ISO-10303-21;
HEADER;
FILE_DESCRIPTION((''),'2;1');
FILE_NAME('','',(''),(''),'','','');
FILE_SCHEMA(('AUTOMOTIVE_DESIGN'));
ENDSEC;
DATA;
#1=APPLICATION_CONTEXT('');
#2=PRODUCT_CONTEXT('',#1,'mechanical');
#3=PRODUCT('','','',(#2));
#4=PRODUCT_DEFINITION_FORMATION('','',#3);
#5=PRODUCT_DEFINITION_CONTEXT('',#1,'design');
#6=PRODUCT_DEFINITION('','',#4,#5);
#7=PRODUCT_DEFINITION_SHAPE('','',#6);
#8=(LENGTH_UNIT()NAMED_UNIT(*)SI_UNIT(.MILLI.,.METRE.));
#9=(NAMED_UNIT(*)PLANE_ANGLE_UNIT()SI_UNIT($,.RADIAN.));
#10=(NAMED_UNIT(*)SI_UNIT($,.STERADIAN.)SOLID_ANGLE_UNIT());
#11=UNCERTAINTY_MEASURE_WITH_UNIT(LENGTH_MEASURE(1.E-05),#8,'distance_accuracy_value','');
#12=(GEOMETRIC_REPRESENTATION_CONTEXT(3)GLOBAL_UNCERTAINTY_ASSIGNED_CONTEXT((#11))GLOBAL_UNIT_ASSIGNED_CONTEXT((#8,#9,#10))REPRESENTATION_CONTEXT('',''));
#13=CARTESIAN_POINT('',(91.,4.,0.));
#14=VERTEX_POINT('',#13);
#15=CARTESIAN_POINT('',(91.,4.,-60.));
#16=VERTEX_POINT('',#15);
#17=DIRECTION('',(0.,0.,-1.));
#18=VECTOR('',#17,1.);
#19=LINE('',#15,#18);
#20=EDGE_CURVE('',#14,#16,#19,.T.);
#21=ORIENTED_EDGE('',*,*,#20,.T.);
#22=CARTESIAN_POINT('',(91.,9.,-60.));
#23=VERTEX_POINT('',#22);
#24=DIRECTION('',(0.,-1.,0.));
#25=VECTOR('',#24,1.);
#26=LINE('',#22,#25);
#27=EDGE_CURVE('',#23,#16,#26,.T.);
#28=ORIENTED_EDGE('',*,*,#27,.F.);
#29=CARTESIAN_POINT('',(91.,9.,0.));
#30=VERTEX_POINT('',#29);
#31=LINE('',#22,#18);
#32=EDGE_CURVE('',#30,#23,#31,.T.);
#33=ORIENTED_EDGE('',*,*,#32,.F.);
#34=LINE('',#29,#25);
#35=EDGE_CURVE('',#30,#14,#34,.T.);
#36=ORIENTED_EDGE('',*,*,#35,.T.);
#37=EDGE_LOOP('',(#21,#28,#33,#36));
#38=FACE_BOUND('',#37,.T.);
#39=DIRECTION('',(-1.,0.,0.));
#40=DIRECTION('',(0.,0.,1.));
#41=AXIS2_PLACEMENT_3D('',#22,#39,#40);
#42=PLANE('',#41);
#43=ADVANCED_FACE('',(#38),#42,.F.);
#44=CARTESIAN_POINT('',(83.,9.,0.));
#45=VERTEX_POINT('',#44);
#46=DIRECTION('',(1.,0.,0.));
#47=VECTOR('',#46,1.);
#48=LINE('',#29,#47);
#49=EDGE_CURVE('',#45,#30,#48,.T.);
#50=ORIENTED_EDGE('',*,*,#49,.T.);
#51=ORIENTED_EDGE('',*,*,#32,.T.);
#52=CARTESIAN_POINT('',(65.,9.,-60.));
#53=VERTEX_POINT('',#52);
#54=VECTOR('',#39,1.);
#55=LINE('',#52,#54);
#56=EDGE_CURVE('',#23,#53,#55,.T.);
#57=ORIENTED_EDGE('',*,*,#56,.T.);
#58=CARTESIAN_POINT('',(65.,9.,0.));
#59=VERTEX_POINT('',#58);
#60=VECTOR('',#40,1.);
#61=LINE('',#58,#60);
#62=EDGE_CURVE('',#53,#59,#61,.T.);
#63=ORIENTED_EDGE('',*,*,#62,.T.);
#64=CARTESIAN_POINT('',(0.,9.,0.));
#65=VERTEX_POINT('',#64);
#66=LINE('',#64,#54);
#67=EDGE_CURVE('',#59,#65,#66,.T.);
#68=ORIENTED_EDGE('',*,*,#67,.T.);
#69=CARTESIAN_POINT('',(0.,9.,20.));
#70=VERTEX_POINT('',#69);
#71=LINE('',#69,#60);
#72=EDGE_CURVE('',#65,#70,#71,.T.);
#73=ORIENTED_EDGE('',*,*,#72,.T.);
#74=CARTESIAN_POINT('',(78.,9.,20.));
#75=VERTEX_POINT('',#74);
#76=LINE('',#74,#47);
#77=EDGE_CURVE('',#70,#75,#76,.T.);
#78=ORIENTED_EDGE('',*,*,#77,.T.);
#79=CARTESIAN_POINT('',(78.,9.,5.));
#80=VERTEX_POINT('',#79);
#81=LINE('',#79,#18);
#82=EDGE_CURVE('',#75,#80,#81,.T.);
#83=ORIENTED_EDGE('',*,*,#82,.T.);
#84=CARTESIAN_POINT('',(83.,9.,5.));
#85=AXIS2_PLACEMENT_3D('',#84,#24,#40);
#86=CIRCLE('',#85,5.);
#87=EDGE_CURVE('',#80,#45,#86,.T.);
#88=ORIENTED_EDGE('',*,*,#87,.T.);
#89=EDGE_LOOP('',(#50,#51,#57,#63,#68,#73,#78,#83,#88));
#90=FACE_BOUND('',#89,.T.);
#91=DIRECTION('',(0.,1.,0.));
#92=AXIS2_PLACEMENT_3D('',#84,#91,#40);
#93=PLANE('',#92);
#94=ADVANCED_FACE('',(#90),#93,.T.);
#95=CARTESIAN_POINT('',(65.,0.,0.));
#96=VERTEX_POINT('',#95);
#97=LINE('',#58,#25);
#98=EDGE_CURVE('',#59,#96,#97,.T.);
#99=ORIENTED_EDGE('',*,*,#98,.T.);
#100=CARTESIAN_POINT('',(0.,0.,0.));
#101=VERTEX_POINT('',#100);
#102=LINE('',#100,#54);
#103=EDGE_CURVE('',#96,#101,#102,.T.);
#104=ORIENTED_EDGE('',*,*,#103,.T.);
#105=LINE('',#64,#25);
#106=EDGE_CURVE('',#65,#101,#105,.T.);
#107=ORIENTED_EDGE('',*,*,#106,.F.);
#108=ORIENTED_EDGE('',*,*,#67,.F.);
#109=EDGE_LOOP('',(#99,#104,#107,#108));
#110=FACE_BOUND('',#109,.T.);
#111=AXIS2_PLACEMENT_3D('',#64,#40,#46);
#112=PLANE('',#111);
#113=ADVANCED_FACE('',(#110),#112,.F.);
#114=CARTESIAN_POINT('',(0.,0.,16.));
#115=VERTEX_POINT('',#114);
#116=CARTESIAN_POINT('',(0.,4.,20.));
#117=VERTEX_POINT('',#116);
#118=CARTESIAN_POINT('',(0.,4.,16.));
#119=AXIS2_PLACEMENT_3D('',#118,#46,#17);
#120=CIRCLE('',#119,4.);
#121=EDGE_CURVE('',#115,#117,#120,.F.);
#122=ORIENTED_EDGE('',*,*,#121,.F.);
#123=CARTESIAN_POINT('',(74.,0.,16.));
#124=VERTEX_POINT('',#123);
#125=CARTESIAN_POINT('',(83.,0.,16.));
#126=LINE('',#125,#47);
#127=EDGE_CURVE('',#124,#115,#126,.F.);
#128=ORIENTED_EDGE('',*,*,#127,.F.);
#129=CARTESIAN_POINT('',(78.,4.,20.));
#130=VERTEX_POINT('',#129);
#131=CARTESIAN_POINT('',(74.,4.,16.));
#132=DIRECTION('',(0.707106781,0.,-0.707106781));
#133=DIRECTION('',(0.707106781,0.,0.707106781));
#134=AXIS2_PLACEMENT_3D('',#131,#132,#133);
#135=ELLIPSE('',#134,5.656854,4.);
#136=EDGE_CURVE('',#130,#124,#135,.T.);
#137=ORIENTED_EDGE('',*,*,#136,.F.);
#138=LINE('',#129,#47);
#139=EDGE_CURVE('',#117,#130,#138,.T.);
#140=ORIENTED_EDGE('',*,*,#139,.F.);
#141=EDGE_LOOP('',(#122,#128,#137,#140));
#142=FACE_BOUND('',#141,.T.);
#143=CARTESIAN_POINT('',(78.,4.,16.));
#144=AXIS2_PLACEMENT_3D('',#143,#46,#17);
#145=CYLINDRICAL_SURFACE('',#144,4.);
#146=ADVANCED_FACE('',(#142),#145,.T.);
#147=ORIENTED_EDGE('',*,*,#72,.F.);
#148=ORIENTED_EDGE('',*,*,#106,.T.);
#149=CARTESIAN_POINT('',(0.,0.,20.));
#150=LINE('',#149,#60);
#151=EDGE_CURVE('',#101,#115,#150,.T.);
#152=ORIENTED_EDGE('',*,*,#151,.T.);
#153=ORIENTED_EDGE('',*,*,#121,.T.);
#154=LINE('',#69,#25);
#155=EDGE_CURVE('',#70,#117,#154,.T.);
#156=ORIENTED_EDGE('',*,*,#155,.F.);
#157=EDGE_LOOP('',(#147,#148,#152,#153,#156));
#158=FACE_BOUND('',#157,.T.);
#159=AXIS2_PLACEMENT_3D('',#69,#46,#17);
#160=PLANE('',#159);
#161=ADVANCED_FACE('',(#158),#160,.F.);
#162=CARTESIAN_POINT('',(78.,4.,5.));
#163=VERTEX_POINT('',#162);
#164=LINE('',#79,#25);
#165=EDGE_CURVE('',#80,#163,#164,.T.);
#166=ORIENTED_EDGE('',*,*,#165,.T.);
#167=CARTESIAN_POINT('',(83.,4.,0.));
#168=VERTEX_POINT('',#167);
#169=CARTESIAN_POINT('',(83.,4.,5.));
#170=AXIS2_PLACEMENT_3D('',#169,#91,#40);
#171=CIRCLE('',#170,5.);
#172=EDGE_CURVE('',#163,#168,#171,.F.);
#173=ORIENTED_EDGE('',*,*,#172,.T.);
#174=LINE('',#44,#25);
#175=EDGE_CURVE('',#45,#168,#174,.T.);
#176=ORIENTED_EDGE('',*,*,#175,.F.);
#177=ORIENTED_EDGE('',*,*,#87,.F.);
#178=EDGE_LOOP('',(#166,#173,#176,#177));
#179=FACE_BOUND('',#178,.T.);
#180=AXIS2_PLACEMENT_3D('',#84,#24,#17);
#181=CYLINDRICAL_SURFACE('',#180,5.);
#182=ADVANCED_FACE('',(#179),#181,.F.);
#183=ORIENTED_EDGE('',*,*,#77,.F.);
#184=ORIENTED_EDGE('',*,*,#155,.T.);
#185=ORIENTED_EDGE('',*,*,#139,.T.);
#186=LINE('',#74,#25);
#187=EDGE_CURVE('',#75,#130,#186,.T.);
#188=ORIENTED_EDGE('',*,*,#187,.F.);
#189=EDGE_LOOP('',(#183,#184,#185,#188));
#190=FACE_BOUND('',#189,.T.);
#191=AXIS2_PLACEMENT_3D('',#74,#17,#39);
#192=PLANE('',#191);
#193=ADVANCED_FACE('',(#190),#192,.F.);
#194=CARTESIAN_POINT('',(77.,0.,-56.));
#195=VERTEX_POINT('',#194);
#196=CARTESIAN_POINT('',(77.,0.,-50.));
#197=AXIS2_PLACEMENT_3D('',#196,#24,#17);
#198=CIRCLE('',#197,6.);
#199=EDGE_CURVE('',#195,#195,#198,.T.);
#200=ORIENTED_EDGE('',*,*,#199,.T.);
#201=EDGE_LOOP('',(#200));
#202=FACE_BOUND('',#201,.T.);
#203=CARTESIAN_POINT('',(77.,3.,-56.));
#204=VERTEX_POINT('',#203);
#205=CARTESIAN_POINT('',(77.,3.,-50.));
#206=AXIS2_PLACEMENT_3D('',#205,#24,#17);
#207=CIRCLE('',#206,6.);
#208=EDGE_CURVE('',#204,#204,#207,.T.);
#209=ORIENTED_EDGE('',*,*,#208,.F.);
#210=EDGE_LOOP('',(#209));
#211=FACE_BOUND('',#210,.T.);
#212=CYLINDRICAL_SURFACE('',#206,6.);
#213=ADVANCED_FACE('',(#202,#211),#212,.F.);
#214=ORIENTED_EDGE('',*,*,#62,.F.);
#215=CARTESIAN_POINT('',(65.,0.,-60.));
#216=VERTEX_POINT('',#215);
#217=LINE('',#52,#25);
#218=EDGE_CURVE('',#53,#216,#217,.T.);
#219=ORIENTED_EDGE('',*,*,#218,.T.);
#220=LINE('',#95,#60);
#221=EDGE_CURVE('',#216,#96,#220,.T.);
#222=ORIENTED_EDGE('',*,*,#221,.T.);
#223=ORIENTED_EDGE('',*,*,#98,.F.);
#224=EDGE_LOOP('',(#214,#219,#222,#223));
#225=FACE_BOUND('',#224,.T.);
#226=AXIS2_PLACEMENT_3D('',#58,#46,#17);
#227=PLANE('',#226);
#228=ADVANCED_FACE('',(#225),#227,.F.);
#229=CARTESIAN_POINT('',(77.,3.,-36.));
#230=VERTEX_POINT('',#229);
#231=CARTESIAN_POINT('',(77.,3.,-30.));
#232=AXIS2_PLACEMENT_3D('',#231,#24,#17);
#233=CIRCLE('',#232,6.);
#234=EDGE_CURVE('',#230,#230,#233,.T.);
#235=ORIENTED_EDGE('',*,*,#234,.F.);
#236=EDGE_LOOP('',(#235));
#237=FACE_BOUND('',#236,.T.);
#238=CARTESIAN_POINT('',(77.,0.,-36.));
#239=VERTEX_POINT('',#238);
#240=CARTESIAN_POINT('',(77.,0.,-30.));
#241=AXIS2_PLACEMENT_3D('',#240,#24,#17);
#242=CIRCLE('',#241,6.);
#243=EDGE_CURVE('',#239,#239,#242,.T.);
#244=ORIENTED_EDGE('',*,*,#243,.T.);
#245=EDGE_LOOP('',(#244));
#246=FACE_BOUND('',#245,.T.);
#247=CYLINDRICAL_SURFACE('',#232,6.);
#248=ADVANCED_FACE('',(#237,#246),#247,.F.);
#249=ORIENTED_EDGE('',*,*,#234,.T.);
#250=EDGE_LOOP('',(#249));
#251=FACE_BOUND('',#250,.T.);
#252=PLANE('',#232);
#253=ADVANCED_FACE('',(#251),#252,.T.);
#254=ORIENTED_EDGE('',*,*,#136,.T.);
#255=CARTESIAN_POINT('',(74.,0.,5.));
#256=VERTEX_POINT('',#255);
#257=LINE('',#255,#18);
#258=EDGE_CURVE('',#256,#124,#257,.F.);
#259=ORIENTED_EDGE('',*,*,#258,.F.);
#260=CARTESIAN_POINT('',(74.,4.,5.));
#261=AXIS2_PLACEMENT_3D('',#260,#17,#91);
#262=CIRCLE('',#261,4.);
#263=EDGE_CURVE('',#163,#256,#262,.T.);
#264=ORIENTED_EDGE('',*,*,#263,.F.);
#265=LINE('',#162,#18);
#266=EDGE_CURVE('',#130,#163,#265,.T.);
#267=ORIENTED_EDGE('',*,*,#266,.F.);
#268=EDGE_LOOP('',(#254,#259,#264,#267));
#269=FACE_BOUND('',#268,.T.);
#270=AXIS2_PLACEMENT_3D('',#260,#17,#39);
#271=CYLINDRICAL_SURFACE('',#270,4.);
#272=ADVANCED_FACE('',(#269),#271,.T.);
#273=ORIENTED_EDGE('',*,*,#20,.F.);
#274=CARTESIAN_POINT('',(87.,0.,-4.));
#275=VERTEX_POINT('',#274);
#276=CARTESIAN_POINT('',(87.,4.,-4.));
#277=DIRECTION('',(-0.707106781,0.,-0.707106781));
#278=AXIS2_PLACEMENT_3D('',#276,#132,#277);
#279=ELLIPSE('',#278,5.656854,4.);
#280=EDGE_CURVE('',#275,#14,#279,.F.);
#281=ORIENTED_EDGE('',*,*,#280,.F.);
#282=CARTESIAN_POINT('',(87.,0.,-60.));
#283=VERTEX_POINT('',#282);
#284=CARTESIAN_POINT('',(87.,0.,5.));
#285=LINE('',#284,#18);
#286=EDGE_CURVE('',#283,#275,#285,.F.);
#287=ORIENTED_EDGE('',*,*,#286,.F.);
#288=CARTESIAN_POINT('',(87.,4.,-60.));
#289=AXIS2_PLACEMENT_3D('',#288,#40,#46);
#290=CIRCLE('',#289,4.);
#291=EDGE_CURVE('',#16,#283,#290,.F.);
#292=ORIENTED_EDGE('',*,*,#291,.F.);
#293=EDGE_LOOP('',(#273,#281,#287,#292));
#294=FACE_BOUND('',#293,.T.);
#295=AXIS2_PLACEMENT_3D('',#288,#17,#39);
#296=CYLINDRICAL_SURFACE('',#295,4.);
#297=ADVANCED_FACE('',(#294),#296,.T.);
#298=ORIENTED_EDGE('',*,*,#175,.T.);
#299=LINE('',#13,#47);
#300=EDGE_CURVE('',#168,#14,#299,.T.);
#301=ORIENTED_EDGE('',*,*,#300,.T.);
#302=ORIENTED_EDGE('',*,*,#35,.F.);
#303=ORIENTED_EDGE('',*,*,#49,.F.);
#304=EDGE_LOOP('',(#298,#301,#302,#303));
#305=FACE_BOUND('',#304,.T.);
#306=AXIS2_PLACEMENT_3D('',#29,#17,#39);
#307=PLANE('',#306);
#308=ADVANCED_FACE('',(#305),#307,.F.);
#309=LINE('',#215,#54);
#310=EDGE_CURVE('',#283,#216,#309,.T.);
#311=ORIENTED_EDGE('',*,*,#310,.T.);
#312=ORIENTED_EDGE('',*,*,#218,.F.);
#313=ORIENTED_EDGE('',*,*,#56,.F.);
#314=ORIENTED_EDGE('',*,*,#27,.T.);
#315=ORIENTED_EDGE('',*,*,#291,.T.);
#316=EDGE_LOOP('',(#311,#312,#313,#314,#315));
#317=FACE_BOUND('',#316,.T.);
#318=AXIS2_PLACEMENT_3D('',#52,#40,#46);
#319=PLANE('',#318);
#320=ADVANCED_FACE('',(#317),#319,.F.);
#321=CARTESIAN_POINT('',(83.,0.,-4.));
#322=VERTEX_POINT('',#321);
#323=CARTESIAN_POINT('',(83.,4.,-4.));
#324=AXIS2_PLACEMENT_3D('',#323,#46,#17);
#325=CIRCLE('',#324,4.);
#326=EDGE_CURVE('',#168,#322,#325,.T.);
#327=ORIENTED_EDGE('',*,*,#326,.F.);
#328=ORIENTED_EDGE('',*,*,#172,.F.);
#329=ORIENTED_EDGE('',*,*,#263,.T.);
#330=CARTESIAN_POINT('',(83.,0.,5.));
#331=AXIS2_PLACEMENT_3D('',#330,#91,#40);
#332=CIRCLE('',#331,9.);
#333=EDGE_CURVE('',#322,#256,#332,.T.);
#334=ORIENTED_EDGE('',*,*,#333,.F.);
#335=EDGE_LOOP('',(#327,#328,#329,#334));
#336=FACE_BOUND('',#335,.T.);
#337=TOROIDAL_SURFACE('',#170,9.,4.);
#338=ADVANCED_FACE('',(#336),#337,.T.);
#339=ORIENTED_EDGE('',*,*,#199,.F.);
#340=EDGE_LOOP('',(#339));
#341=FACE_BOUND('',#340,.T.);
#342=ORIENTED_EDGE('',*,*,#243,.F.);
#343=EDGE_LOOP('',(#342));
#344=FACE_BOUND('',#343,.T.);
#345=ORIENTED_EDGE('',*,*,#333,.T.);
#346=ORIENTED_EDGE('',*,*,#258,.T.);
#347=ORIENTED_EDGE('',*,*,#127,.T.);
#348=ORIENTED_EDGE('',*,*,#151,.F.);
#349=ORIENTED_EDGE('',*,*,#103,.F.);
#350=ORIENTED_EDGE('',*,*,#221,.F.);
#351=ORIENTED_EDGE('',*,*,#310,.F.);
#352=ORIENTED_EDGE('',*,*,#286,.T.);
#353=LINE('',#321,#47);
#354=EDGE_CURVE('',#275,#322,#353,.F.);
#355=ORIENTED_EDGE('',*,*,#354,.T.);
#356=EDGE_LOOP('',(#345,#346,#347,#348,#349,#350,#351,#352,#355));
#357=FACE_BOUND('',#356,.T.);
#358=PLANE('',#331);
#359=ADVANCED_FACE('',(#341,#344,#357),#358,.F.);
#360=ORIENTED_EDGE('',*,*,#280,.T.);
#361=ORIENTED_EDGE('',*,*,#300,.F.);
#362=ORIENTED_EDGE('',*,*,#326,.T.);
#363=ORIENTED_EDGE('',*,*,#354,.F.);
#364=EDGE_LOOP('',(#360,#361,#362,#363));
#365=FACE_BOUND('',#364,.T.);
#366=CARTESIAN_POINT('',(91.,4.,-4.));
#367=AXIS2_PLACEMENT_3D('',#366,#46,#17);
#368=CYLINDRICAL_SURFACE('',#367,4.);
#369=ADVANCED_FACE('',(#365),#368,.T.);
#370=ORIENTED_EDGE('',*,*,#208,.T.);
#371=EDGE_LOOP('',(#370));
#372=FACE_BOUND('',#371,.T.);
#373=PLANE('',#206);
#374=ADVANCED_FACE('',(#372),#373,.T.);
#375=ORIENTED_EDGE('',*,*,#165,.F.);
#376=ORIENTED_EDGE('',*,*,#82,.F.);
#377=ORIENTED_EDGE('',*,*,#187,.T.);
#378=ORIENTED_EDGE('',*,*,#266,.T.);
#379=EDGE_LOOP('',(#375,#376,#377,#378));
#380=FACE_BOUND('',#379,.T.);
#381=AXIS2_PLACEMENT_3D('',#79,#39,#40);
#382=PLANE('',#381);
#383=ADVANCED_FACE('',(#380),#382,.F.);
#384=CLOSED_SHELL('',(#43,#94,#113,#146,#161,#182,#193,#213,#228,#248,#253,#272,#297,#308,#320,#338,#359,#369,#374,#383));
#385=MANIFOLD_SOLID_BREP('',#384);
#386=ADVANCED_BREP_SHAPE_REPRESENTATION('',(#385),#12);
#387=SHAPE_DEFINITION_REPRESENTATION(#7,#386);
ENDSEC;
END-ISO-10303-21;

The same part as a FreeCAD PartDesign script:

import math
import FreeCAD as App
import Part
import Sketcher

V = App.Vector


def edges_at(feature, points):
    """Names of the edges that pass closest to the given points."""
    edges = feature.Shape.Edges
    near = lambda p: min(range(len(edges)), key=lambda i: edges[i].distToShape(Part.Vertex(*p))[0])
    return sorted({f"Edge{near(p) + 1}" for p in points})

doc = App.newDocument("Part")
body = doc.addObject("PartDesign::Body", "Body")

# Sketch on XZ plane
sketch1 = doc.addObject("Sketcher::SketchObject", "Sketch")
body.addObject(sketch1)
sketch1.AttachmentSupport = (doc.XZ_Plane, [""])
sketch1.MapMode = "FlatFace"
sketch1.addGeometry([
    Part.LineSegment(V(65, 0, 0), V(0, 0, 0)),  # 0
    Part.LineSegment(V(0, 0, 0), V(0, 20, 0)),  # 1
    Part.LineSegment(V(0, 20, 0), V(78, 20, 0)),  # 2
    Part.LineSegment(V(78, 20, 0), V(78, 5, 0)),  # 3
    Part.ArcOfCircle(Part.Circle(V(83, 5, 0), V(0, 0, 1), 5), math.radians(180), math.radians(270)),  # 4
    Part.LineSegment(V(83, 0, 0), V(91, 0, 0)),  # 5
    Part.LineSegment(V(91, 0, 0), V(91, -60, 0)),  # 6
    Part.LineSegment(V(91, -60, 0), V(65, -60, 0)),  # 7
    Part.LineSegment(V(65, -60, 0), V(65, 0, 0)),  # 8
], False)
sketch1.addConstraint([
    Sketcher.Constraint("Coincident", 0, 2, 1, 1),
    Sketcher.Constraint("Coincident", 1, 2, 2, 1),
    Sketcher.Constraint("Coincident", 2, 2, 3, 1),
    Sketcher.Constraint("Tangent", 3, 2, 4, 1),
    Sketcher.Constraint("Tangent", 4, 2, 5, 1),
    Sketcher.Constraint("Coincident", 5, 2, 6, 1),
    Sketcher.Constraint("Coincident", 6, 2, 7, 1),
    Sketcher.Constraint("Coincident", 7, 2, 8, 1),
    Sketcher.Constraint("Coincident", 8, 2, 0, 1),
    Sketcher.Constraint("Horizontal", 0),
    Sketcher.Constraint("Vertical", 1),
    Sketcher.Constraint("Horizontal", 2),
    Sketcher.Constraint("Vertical", 3),
    Sketcher.Constraint("Horizontal", 5),
    Sketcher.Constraint("Vertical", 6),
    Sketcher.Constraint("Horizontal", 7),
    Sketcher.Constraint("Vertical", 8),
    Sketcher.Constraint("Coincident", 0, 2, -1, 1),
    Sketcher.Constraint("PointOnObject", 4, 2, -1),
    Sketcher.Constraint("Radius", 4, 5.0),
    Sketcher.Constraint("DistanceX", 0, 2, 0, 1, 65.0),
    Sketcher.Constraint("DistanceX", 2, 1, 2, 2, 78.0),
    Sketcher.Constraint("DistanceX", 5, 1, 5, 2, 8.0),
    Sketcher.Constraint("DistanceY", 1, 1, 1, 2, 20.0),
    Sketcher.Constraint("DistanceY", 6, 2, 6, 1, 60.0),
])
pad1 = doc.addObject("PartDesign::Pad", "Pad")
body.addObject(pad1)
pad1.Profile = sketch1
pad1.Length = 9
pad1.Reversed = True
doc.recompute()

fillet = doc.addObject("PartDesign::Fillet", "Fillet")
body.addObject(fillet)
fillet.Base = (pad1, edges_at(pad1, [
    (87, 0, 0),
    (79.464, 0, 1.464),
    (78, 0, 12.5),
    (39, 0, 20),
    (91, 0, -30),
]))
fillet.Radius = 4

# Sketch on XZ plane
sketch2 = doc.addObject("Sketcher::SketchObject", "Sketch001")
body.addObject(sketch2)
sketch2.AttachmentSupport = (doc.XZ_Plane, [""])
sketch2.MapMode = "FlatFace"
sketch2.addGeometry([
    Part.Circle(V(77, -50, 0), V(0, 0, 1), 6),
    Part.Circle(V(77, -30, 0), V(0, 0, 1), 6),
], False)
sketch2.addConstraint([
    Sketcher.Constraint("Equal", 0, 1),
    Sketcher.Constraint("Vertical", 0, 3, 1, 3),
    Sketcher.Constraint("Diameter", 0, 12.0),
    Sketcher.Constraint("DistanceX", -1, 1, 0, 3, 77.0),
    Sketcher.Constraint("DistanceY", 0, 3, -1, 1, 50.0),
    Sketcher.Constraint("DistanceY", 1, 3, -1, 1, 30.0),
])
pocket1 = doc.addObject("PartDesign::Pocket", "Pocket")
body.addObject(pocket1)
pocket1.Profile = sketch2
pocket1.Length = 3

doc.recompute()
